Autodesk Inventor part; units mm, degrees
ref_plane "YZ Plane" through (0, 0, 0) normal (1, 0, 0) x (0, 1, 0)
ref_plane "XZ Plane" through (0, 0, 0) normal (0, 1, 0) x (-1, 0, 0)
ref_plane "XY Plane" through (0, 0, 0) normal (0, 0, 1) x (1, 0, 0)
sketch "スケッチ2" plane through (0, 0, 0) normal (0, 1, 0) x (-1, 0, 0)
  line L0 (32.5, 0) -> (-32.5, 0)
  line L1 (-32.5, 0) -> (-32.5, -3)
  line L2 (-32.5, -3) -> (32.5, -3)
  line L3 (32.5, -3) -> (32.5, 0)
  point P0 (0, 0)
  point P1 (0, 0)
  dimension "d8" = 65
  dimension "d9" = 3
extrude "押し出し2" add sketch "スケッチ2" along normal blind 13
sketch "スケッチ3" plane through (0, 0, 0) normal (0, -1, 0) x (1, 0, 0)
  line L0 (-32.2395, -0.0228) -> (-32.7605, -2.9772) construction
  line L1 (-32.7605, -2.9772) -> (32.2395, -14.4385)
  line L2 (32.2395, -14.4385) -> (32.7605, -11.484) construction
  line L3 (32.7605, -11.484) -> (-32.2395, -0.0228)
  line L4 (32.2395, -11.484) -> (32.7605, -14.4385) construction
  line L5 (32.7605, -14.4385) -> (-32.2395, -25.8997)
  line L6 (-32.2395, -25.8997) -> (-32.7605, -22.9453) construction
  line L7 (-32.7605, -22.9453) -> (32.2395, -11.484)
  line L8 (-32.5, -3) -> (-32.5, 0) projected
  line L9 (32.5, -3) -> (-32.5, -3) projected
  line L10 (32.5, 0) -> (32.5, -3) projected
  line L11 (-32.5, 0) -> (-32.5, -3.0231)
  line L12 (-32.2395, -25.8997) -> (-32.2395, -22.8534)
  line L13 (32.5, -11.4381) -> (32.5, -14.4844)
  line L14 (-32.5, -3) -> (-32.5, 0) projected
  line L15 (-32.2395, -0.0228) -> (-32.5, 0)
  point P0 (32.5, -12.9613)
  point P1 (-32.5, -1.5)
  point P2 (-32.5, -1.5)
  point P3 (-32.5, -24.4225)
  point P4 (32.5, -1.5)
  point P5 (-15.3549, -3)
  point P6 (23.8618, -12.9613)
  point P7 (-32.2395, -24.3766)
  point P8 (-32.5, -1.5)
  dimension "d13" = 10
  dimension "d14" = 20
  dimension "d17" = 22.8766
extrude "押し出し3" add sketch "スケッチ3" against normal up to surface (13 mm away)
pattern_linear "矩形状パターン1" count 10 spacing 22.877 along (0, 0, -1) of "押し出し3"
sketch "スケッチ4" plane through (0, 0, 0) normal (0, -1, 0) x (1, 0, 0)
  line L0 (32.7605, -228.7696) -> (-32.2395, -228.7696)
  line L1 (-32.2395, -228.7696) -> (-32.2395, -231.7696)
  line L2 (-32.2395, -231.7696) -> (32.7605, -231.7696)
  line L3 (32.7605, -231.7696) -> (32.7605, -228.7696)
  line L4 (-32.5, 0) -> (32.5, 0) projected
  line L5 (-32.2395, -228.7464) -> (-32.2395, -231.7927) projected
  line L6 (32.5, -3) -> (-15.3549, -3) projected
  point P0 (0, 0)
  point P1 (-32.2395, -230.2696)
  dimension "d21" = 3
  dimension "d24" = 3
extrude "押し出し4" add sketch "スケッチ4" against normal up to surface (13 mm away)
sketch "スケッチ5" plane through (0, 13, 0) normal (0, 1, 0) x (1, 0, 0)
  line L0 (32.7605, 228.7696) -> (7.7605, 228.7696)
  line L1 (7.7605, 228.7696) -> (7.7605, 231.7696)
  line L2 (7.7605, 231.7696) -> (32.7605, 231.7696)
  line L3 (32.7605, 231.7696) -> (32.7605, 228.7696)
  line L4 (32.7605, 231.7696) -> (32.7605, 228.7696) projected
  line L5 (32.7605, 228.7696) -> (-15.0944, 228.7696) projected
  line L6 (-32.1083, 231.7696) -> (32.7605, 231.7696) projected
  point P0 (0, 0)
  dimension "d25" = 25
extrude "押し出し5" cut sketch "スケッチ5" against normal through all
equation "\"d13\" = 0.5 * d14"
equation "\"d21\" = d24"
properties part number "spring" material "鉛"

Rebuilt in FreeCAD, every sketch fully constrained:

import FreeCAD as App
import Part
import Sketcher

V = App.Vector
Q = App.Units.Quantity

doc = App.newDocument("Part")
body = doc.addObject("PartDesign::Body", "Body")

# Sketch on XZ plane
sketch1 = body.newObject("Sketcher::SketchObject", "Sketch")
sketch1.AttachmentSupport = (doc.getObject("XZ_Plane"), [""])
sketch1.MapMode = "FlatFace"
sketch1.addGeometry(Part.LineSegment(V(-32.5, -3, 0), V(-32.5, 0, 0)), False)
sketch1.addGeometry(Part.LineSegment(V(-32.5, 0, 0), V(32.5, 0, 0)), False)
sketch1.addGeometry(Part.LineSegment(V(32.5, 0, 0), V(32.5, -3, 0)), False)
sketch1.addGeometry(Part.LineSegment(V(32.5, -3, 0), V(-32.5, -3, 0)), False)
sketch1.addConstraint(Sketcher.Constraint("Coincident", 0, 2, 1, 1))
sketch1.addConstraint(Sketcher.Constraint("Coincident", 1, 2, 2, 1))
sketch1.addConstraint(Sketcher.Constraint("Coincident", 2, 2, 3, 1))
sketch1.addConstraint(Sketcher.Constraint("Coincident", 3, 2, 0, 1))
sketch1.addConstraint(Sketcher.Constraint("Vertical", 0))
sketch1.addConstraint(Sketcher.Constraint("Horizontal", 1))
sketch1.addConstraint(Sketcher.Constraint("Vertical", 2))
sketch1.addConstraint(Sketcher.Constraint("Horizontal", 3))
sketch1.addConstraint(Sketcher.Constraint("Symmetric", 0, 2, 1, 2, -1, 1))
sketch1.addConstraint(Sketcher.Constraint("DistanceX", 1, 1, 1, 2, Q("65 mm")))
sketch1.addConstraint(Sketcher.Constraint("DistanceY", 0, 1, 0, 2, Q("3 mm")))
pad1 = body.newObject("PartDesign::Pad", "Pad")
pad1.Profile = sketch1
pad1.Length = 13
pad1.Reversed = True

# Sketch on XZ plane
sketch2 = body.newObject("Sketcher::SketchObject", "Sketch001")
sketch2.AttachmentSupport = (doc.getObject("XZ_Plane"), [""])
sketch2.MapMode = "FlatFace"
sketch2.addGeometry(Part.LineSegment(V(-32.5, -3.02, 0), V(23.86, -12.96, 0)), False)
sketch2.addGeometry(Part.LineSegment(V(23.86, -12.96, 0), V(-32.24, -22.85, 0)), False)
sketch2.addGeometry(Part.LineSegment(V(-32.24, -22.85, 0), V(-32.24, -25.9, 0)), False)
sketch2.addGeometry(Part.LineSegment(V(-32.24, -25.9, 0), V(32.5, -14.48, 0)), False)
sketch2.addGeometry(Part.LineSegment(V(32.5, -14.48, 0), V(32.5, -11.44, 0)), False)
sketch2.addGeometry(Part.LineSegment(V(32.5, -11.44, 0), V(-32.24, -0.02, 0)), False)
sketch2.addGeometry(Part.LineSegment(V(-32.24, -0.02, 0), V(-32.5, 0, 0)), False)
sketch2.addGeometry(Part.LineSegment(V(-32.5, 0, 0), V(-32.5, -3.02, 0)), False)
sketch2.addConstraint(Sketcher.Constraint("Coincident", 0, 2, 1, 1))
sketch2.addConstraint(Sketcher.Constraint("Coincident", 1, 2, 2, 1))
sketch2.addConstraint(Sketcher.Constraint("Coincident", 2, 2, 3, 1))
sketch2.addConstraint(Sketcher.Constraint("Coincident", 3, 2, 4, 1))
sketch2.addConstraint(Sketcher.Constraint("Coincident", 4, 2, 5, 1))
sketch2.addConstraint(Sketcher.Constraint("Coincident", 5, 2, 6, 1))
sketch2.addConstraint(Sketcher.Constraint("Coincident", 6, 2, 7, 1))
sketch2.addConstraint(Sketcher.Constraint("Coincident", 7, 2, 0, 1))
sketch2.addConstraint(Sketcher.Constraint("Vertical", 2))
sketch2.addConstraint(Sketcher.Constraint("Vertical", 4))
sketch2.addConstraint(Sketcher.Constraint("Vertical", 7))
sketch2.addConstraint(Sketcher.Constraint("PointOnObject", 6, 2, -1))
sketch2.addConstraint(Sketcher.Constraint("Parallel", 1, 3))
sketch2.addConstraint(Sketcher.Constraint("Parallel", 0, 5))
sketch2.addConstraint(Sketcher.Constraint("Vertical", 2, 2, 5, 2))
sketch2.addConstraint(Sketcher.Constraint("Equal", 2, 4))
sketch2.addConstraint(Sketcher.Constraint("Equal", 3, 5))
sketch2.addConstraint(Sketcher.Constraint("Angle", 0, Q("-10 deg")))
sketch2.addConstraint(Sketcher.Constraint("DistanceX", 6, 2, 4, 2, Q("65 mm")))
sketch2.addConstraint(Sketcher.Constraint("DistanceX", -1, 1, 3, 2, Q("32.5 mm")))
sketch2.addConstraint(Sketcher.Constraint("DistanceY", 2, 2, 7, 2, Q("22.8766 mm")))
sketch2.addConstraint(Sketcher.Constraint("DistanceY", 7, 2, 7, 1, Q("3.023 mm")))
sketch2.addConstraint(Sketcher.Constraint("Distance", 0, Q("57.231 mm")))
sketch2.addConstraint(Sketcher.Constraint("DistanceY", 2, 2, 2, 1, Q("3.0463 mm")))
pad2 = body.newObject("PartDesign::Pad", "Pad001")
pad2.Profile = sketch2
pad2.Length = 13
pad2.Reversed = True
doc.recompute()

linearpattern = body.newObject("PartDesign::LinearPattern", "LinearPattern")
linearpattern.Originals = [pad2]
linearpattern.Direction = (doc.getObject("Z_Axis"), [""])
linearpattern.Mode = "offset"
linearpattern.Offset = 22.877
linearpattern.Occurrences = 10
linearpattern.Reversed = True
body.Tip = linearpattern

# Sketch on XZ plane
sketch3 = body.newObject("Sketcher::SketchObject", "Sketch002")
sketch3.AttachmentSupport = (doc.getObject("XZ_Plane"), [""])
sketch3.MapMode = "FlatFace"
sketch3.addGeometry(Part.LineSegment(V(32.8, -231.8, 0), V(32.8, -228.8, 0)), False)
sketch3.addGeometry(Part.LineSegment(V(32.8, -228.8, 0), V(-32.2, -228.8, 0)), False)
sketch3.addGeometry(Part.LineSegment(V(-32.2, -228.8, 0), V(-32.2, -231.8, 0)), False)
sketch3.addGeometry(Part.LineSegment(V(-32.2, -231.8, 0), V(32.8, -231.8, 0)), False)
sketch3.addConstraint(Sketcher.Constraint("Coincident", 0, 2, 1, 1))
sketch3.addConstraint(Sketcher.Constraint("Coincident", 1, 2, 2, 1))
sketch3.addConstraint(Sketcher.Constraint("Coincident", 2, 2, 3, 1))
sketch3.addConstraint(Sketcher.Constraint("Coincident", 3, 2, 0, 1))
sketch3.addConstraint(Sketcher.Constraint("Vertical", 0))
sketch3.addConstraint(Sketcher.Constraint("Horizontal", 1))
sketch3.addConstraint(Sketcher.Constraint("Vertical", 2))
sketch3.addConstraint(Sketcher.Constraint("Horizontal", 3))
sketch3.addConstraint(Sketcher.Constraint("DistanceY", 0, 1, 0, 2, Q("3 mm")))
sketch3.addConstraint(Sketcher.Constraint("DistanceX", 1, 2, 1, 1, Q("65 mm")))
sketch3.addConstraint(Sketcher.Constraint("DistanceX", -1, 1, 0, 2, Q("32.7605 mm")))
sketch3.addConstraint(Sketcher.Constraint("DistanceY", 0, 2, -1, 1, Q("228.7696 mm")))
pad3 = body.newObject("PartDesign::Pad", "Pad002")
pad3.Profile = sketch3
pad3.Length = 13
pad3.Reversed = True

# Sketch on XZ plane
sketch4 = body.newObject("Sketcher::SketchObject", "Sketch003")
sketch4.AttachmentSupport = (doc.getObject("XZ_Plane"), [""])
sketch4.MapMode = "FlatFace"
sketch4.AttachmentOffset = App.Placement(V(0, 0, -13), App.Rotation())
sketch4.addGeometry(Part.LineSegment(V(7.8, -228.8, 0), V(32.8, -228.8, 0)), False)
sketch4.addGeometry(Part.LineSegment(V(32.8, -228.8, 0), V(32.8, -231.8, 0)), False)
sketch4.addGeometry(Part.LineSegment(V(32.8, -231.8, 0), V(7.8, -231.8, 0)), False)
sketch4.addGeometry(Part.LineSegment(V(7.8, -231.8, 0), V(7.8, -228.8, 0)), False)
sketch4.addConstraint(Sketcher.Constraint("Coincident", 0, 2, 1, 1))
sketch4.addConstraint(Sketcher.Constraint("Coincident", 1, 2, 2, 1))
sketch4.addConstraint(Sketcher.Constraint("Coincident", 2, 2, 3, 1))
sketch4.addConstraint(Sketcher.Constraint("Coincident", 3, 2, 0, 1))
sketch4.addConstraint(Sketcher.Constraint("Horizontal", 0))
sketch4.addConstraint(Sketcher.Constraint("Vertical", 1))
sketch4.addConstraint(Sketcher.Constraint("Horizontal", 2))
sketch4.addConstraint(Sketcher.Constraint("Vertical", 3))
sketch4.addConstraint(Sketcher.Constraint("DistanceX", 0, 1, 0, 2, Q("25 mm")))
sketch4.addConstraint(Sketcher.Constraint("DistanceY", 1, 2, 1, 1, Q("3 mm")))
sketch4.addConstraint(Sketcher.Constraint("DistanceX", -1, 1, 0, 2, Q("32.7605 mm")))
sketch4.addConstraint(Sketcher.Constraint("DistanceY", 0, 2, -1, 1, Q("228.7696 mm")))
pocket1 = body.newObject("PartDesign::Pocket", "Pocket")
pocket1.Profile = sketch4
pocket1.Type = "ThroughAll"
pocket1.Reversed = True

doc.recompute()
